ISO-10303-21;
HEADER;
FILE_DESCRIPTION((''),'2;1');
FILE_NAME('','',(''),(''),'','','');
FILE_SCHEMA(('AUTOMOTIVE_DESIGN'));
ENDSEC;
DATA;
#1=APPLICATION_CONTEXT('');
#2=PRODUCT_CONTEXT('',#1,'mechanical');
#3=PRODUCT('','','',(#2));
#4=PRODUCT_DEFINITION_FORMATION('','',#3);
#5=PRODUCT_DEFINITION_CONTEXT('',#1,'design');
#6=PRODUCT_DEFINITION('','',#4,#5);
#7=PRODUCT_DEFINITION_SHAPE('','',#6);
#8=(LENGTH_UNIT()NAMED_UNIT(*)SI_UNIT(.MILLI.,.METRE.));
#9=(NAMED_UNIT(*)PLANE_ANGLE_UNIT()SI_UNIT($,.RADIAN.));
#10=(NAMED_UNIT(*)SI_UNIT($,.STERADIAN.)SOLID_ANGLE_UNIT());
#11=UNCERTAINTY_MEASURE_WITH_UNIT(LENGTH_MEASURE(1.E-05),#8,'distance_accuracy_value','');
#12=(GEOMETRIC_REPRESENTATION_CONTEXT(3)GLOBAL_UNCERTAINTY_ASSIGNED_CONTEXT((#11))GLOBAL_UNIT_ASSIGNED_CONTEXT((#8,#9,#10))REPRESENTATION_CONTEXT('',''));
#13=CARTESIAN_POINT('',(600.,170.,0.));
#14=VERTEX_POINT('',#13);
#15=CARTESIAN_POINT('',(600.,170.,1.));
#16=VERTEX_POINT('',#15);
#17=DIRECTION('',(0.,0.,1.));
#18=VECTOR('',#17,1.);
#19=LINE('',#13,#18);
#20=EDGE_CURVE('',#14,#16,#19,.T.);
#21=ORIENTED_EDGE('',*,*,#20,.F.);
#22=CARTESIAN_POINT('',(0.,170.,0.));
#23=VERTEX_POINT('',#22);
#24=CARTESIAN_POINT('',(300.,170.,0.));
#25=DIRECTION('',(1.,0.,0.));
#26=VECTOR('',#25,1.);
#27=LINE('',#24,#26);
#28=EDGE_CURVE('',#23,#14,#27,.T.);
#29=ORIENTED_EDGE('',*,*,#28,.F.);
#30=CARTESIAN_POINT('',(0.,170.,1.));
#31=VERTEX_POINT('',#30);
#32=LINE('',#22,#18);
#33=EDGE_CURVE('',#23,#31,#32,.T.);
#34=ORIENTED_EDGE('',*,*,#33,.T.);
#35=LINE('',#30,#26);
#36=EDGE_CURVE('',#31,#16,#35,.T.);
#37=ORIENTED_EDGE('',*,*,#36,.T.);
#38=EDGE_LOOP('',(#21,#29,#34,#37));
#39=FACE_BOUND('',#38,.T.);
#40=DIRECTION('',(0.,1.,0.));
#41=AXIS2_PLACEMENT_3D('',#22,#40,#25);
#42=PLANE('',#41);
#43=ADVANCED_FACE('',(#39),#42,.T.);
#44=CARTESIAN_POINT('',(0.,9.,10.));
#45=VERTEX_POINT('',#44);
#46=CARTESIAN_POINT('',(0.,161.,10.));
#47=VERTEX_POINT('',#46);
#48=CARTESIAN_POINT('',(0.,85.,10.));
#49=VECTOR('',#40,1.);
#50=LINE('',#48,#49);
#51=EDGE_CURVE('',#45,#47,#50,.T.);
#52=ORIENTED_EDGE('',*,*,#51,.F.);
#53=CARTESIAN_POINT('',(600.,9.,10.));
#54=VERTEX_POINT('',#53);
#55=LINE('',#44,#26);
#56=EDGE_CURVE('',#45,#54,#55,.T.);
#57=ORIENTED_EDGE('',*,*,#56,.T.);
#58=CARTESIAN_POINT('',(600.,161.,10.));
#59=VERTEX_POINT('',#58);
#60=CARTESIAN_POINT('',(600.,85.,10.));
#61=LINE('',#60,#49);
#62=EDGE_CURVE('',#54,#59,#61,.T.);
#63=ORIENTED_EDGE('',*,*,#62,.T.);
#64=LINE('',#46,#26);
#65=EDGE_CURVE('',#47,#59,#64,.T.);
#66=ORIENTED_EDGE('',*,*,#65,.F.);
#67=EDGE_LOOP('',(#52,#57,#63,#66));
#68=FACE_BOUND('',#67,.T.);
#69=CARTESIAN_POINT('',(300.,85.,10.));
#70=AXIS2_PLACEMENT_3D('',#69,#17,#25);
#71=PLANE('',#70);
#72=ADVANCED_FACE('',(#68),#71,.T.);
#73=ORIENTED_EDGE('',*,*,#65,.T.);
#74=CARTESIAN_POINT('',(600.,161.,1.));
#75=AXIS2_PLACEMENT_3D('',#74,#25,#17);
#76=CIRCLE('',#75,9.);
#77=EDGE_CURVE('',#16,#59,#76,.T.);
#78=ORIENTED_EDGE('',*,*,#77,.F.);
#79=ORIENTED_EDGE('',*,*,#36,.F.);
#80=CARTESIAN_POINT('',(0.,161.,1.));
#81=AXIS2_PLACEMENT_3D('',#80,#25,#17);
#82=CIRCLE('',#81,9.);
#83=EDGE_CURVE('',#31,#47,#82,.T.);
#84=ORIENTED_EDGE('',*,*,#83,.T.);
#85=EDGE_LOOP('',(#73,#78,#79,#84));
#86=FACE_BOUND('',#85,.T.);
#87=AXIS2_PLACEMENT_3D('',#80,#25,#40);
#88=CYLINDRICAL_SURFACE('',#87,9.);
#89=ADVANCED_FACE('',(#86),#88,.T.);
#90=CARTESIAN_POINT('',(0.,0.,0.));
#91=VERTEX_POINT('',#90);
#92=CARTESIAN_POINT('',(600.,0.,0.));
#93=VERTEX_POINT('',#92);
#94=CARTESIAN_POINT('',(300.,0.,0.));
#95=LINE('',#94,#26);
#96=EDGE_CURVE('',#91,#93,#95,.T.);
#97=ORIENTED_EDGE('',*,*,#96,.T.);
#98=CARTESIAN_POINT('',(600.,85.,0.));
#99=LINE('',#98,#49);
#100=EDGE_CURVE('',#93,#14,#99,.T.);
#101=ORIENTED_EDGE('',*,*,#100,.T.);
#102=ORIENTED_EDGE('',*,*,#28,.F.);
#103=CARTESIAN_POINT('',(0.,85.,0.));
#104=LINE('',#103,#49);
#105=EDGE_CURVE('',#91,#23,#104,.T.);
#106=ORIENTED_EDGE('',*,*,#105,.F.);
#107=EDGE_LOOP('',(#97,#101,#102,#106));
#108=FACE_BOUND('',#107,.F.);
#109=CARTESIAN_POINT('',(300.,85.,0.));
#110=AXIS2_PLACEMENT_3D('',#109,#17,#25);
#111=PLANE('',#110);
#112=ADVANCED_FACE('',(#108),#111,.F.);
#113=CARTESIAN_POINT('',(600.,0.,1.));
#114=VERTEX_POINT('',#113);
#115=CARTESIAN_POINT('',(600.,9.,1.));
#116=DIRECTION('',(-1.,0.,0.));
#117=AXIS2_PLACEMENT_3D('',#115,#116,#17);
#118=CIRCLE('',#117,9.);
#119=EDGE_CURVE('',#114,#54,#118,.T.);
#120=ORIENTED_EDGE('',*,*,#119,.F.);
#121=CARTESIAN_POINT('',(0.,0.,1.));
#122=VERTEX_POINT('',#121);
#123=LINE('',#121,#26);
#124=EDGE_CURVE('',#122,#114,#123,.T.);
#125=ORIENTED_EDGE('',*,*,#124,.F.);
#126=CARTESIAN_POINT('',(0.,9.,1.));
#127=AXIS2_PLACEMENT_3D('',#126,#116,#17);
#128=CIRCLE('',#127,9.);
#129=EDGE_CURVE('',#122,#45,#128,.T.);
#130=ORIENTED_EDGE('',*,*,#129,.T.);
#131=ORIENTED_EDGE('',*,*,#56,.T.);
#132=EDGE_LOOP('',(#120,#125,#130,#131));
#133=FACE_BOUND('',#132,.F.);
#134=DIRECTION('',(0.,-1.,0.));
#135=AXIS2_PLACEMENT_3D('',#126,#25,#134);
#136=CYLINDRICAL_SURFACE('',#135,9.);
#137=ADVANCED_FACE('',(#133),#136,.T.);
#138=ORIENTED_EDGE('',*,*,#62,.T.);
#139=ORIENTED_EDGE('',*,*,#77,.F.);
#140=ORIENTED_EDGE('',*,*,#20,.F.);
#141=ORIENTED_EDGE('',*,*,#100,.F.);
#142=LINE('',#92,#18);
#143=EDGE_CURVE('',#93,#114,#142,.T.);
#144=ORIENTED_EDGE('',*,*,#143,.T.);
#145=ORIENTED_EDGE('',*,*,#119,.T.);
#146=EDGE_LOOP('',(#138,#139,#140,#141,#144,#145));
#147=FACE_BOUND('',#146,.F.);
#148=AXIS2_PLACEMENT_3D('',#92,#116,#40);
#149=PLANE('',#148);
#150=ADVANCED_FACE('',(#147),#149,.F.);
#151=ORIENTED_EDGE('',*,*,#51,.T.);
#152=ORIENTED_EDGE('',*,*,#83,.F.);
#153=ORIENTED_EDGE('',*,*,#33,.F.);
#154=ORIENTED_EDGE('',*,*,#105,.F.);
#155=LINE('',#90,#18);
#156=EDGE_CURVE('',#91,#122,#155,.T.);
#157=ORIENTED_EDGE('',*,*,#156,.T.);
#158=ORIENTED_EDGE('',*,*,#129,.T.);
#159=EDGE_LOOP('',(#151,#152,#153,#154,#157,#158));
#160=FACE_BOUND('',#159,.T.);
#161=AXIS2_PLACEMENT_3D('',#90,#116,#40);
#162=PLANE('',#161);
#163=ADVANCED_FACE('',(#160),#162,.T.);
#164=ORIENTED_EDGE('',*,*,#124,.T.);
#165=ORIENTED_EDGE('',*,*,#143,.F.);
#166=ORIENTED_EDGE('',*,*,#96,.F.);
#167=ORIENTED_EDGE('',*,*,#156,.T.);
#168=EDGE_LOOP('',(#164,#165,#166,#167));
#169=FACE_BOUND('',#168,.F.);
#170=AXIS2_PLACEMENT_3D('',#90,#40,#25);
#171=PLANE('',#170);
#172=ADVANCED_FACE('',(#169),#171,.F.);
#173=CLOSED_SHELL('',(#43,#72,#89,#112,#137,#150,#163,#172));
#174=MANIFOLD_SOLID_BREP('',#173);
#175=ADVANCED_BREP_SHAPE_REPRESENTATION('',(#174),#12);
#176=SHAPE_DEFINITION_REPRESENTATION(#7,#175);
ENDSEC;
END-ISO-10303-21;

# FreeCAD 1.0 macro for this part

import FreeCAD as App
import Part
import Sketcher
from FreeCAD import Vector


def edges_at(feature, points):
    """Names of the edges that pass closest to the given points."""
    edges = feature.Shape.Edges
    near = lambda p: min(range(len(edges)), key=lambda i: edges[i].distToShape(Part.Vertex(*p))[0])
    return sorted({f"Edge{near(p) + 1}" for p in points})

doc = App.newDocument("Part")
body = doc.addObject("PartDesign::Body", "Body")

sketch1 = body.newObject("Sketcher::SketchObject", "Sketch")
sketch1.AttachmentSupport = (doc.getObject("XY_Plane"), [""])
sketch1.MapMode = "FlatFace"
sketch1.addGeometry([
    Part.LineSegment(Vector(0, 170, 0), Vector(0, 0, 0)),
    Part.LineSegment(Vector(0, 0, 0), Vector(600, 0, 0)),
    Part.LineSegment(Vector(600, 0, 0), Vector(600, 170, 0)),
    Part.LineSegment(Vector(600, 170, 0), Vector(0, 170, 0)),
], False)
sketch1.addConstraint([
    Sketcher.Constraint("Coincident", 0, 2, 1, 1),
    Sketcher.Constraint("Coincident", 1, 2, 2, 1),
    Sketcher.Constraint("Coincident", 2, 2, 3, 1),
    Sketcher.Constraint("Coincident", 3, 2, 0, 1),
    Sketcher.Constraint("Vertical", 0),
    Sketcher.Constraint("Horizontal", 1),
    Sketcher.Constraint("Vertical", 2),
    Sketcher.Constraint("Horizontal", 3),
    Sketcher.Constraint("Coincident", 0, 2, -1, 1),
    Sketcher.Constraint("DistanceX", 1, 1, 1, 2, 600.0),
    Sketcher.Constraint("DistanceY", 0, 2, 0, 1, 170.0),
])
pad1 = body.newObject("PartDesign::Pad", "Pad")
pad1.Profile = sketch1
pad1.Length = 10
doc.recompute()

fillet = body.newObject("PartDesign::Fillet", "Fillet")
fillet.Base = (pad1, edges_at(pad1, [(300, 0, 10), (300, 170, 10)]))
fillet.Radius = 9

doc.recompute()
